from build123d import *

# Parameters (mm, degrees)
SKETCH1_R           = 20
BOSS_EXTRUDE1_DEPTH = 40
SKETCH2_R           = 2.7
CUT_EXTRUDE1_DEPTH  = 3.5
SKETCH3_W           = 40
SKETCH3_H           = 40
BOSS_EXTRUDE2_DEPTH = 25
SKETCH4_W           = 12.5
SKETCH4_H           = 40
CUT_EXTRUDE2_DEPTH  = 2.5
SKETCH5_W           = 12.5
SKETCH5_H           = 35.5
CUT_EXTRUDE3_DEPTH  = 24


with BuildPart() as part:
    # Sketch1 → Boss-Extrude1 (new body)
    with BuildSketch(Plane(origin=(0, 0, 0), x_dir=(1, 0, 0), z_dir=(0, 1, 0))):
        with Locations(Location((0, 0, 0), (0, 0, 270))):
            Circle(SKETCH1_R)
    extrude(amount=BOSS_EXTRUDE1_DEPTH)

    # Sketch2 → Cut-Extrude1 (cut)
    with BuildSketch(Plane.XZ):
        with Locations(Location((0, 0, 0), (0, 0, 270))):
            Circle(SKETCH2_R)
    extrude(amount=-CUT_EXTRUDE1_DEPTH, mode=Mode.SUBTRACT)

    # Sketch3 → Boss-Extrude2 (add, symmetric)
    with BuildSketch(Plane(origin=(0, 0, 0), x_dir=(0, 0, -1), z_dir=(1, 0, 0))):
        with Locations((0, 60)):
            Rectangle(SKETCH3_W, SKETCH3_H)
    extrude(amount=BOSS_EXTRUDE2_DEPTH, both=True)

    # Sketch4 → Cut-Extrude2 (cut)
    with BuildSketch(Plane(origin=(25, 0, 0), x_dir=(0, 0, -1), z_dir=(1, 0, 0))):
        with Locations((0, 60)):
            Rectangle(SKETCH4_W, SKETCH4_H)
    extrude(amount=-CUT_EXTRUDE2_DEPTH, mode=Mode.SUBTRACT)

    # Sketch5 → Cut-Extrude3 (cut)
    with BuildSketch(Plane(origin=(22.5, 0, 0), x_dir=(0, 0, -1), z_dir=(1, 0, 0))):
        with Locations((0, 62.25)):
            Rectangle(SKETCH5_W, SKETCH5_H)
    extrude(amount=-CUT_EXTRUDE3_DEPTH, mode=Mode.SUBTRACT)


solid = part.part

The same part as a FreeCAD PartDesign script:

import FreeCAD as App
import Part
import Sketcher
from FreeCAD import Vector


def add_polygon(sketch, points):
    """Adds a closed chain of lines whose ends are joined by coincident constraints."""
    first, n = sketch.GeometryCount, len(points)
    for a, b in zip(points, points[1:] + points[:1]):
        sketch.addGeometry(Part.LineSegment(App.Vector(*a, 0), App.Vector(*b, 0)), False)
    for i in range(n):
        sketch.addConstraint(Sketcher.Constraint("Coincident", first + i, 2, first + (i + 1) % n, 1))

doc = App.newDocument("Part")
body = doc.addObject("PartDesign::Body", "Body")

sketch1 = body.newObject("Sketcher::SketchObject", "Sketch")
sketch1.AttachmentSupport = (doc.getObject("XZ_Plane"), [""])
sketch1.MapMode = "FlatFace"
sketch1.addGeometry(Part.Circle(Vector(0, 0, 0), Vector(0, 0, 1), 20), False)
sketch1.addConstraint([
    Sketcher.Constraint("Coincident", 0, 3, -1, 1),
    Sketcher.Constraint("Diameter", 0, 40.0),
])
pad1 = body.newObject("PartDesign::Pad", "Pad")
pad1.Profile = sketch1
pad1.Length = 40
pad1.Reversed = True

sketch2 = body.newObject("Sketcher::SketchObject", "Sketch001")
sketch2.AttachmentSupport = (doc.getObject("XZ_Plane"), [""])
sketch2.MapMode = "FlatFace"
sketch2.addGeometry(Part.Circle(Vector(0, 0, 0), Vector(0, 0, 1), 2.7), False)
sketch2.addConstraint([
    Sketcher.Constraint("Coincident", 0, 3, -1, 1),
    Sketcher.Constraint("Diameter", 0, 5.4),
])
pocket1 = body.newObject("PartDesign::Pocket", "Pocket")
pocket1.Profile = sketch2
pocket1.Length = 3.5

sketch3 = body.newObject("Sketcher::SketchObject", "Sketch002")
sketch3.AttachmentSupport = (doc.getObject("YZ_Plane"), [""])
sketch3.MapMode = "FlatFace"
add_polygon(sketch3, [(80, 20), (40, 20), (40, -20), (80, -20)])
sketch3.addConstraint([
    Sketcher.Constraint("Horizontal", 0),
    Sketcher.Constraint("Vertical", 1),
    Sketcher.Constraint("Horizontal", 2),
    Sketcher.Constraint("Vertical", 3),
    Sketcher.Constraint("Equal", 2, 1),
    Sketcher.Constraint("DistanceX", 0, 2, 0, 1, 40.0),
    Sketcher.Constraint("DistanceX", -1, 1, 0, 2, 40.0),
    Sketcher.Constraint("DistanceY", -1, 1, 0, 2, 20.0),
])
pad2 = body.newObject("PartDesign::Pad", "Pad001")
pad2.Profile = sketch3
pad2.Length = 50
pad2.Midplane = True

sketch4 = body.newObject("Sketcher::SketchObject", "Sketch003")
sketch4.AttachmentSupport = (doc.getObject("YZ_Plane"), [""])
sketch4.MapMode = "FlatFace"
sketch4.AttachmentOffset = App.Placement(Vector(0, 0, 25), App.Rotation())
add_polygon(sketch4, [(80, 6), (40, 6), (40, -6), (80, -6)])
sketch4.addConstraint([
    Sketcher.Constraint("Horizontal", 0),
    Sketcher.Constraint("Vertical", 1),
    Sketcher.Constraint("Horizontal", 2),
    Sketcher.Constraint("Vertical", 3),
    Sketcher.Constraint("DistanceX", 0, 2, 0, 1, 40.0),
    Sketcher.Constraint("DistanceY", 1, 2, 1, 1, 12.5),
    Sketcher.Constraint("DistanceX", -1, 1, 0, 2, 40.0),
    Sketcher.Constraint("DistanceY", -1, 1, 0, 2, 6.25),
])
pocket2 = body.newObject("PartDesign::Pocket", "Pocket001")
pocket2.Profile = sketch4
pocket2.Length = 2.5

sketch5 = body.newObject("Sketcher::SketchObject", "Sketch004")
sketch5.AttachmentSupport = (doc.getObject("YZ_Plane"), [""])
sketch5.MapMode = "FlatFace"
sketch5.AttachmentOffset = App.Placement(Vector(0, 0, 22.5), App.Rotation())
add_polygon(sketch5, [(80, 6), (44, 6), (44, -6), (80, -6)])
sketch5.addConstraint([
    Sketcher.Constraint("Horizontal", 0),
    Sketcher.Constraint("Vertical", 1),
    Sketcher.Constraint("Horizontal", 2),
    Sketcher.Constraint("Vertical", 3),
    Sketcher.Constraint("DistanceX", 0, 2, 0, 1, 35.5),
    Sketcher.Constraint("DistanceY", 1, 2, 1, 1, 12.5),
    Sketcher.Constraint("DistanceX", -1, 1, 2, 2, 80.0),
    Sketcher.Constraint("DistanceY", -1, 1, 0, 2, 6.25),
])
pocket3 = body.newObject("PartDesign::Pocket", "Pocket002")
pocket3.Profile = sketch5
pocket3.Length = 24

doc.recompute()
